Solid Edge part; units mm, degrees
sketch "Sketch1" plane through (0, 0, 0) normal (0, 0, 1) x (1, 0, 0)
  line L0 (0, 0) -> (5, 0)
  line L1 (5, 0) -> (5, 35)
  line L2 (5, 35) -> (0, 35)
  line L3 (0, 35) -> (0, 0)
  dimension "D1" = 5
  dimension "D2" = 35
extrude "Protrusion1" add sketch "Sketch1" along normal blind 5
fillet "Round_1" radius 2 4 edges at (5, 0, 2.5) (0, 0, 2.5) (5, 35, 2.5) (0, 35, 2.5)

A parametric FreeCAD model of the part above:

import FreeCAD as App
import Part
import Sketcher


def edges_at(feature, points):
    """Names of the edges that pass closest to the given points."""
    edges = feature.Shape.Edges
    near = lambda p: min(range(len(edges)), key=lambda i: edges[i].distToShape(Part.Vertex(*p))[0])
    return sorted({f"Edge{near(p) + 1}" for p in points})


def add_polygon(sketch, points):
    """Adds a closed chain of lines whose ends are joined by coincident constraints."""
    first, n = sketch.GeometryCount, len(points)
    for a, b in zip(points, points[1:] + points[:1]):
        sketch.addGeometry(Part.LineSegment(App.Vector(*a, 0), App.Vector(*b, 0)), False)
    for i in range(n):
        sketch.addConstraint(Sketcher.Constraint("Coincident", first + i, 2, first + (i + 1) % n, 1))

doc = App.newDocument("Part")
body = doc.addObject("PartDesign::Body", "Body")

# Sketch on XY plane
sketch1 = body.newObject("Sketcher::SketchObject", "Sketch")
sketch1.AttachmentSupport = (doc.getObject("XY_Plane"), [""])
sketch1.MapMode = "FlatFace"
add_polygon(sketch1, [(0, 35), (0, 0), (5, 0), (5, 35)])  # lines 0-3
sketch1.addConstraint(Sketcher.Constraint("Vertical", 0))
sketch1.addConstraint(Sketcher.Constraint("Horizontal", 1))
sketch1.addConstraint(Sketcher.Constraint("Vertical", 2))
sketch1.addConstraint(Sketcher.Constraint("Horizontal", 3))
sketch1.addConstraint(Sketcher.Constraint("Coincident", 0, 2, -1, 1))
sketch1.addConstraint(Sketcher.Constraint("DistanceX", 1, 1, 1, 2, 5.0))
sketch1.addConstraint(Sketcher.Constraint("DistanceY", 0, 2, 0, 1, 35.0))
pad1 = body.newObject("PartDesign::Pad", "Pad")
pad1.Profile = sketch1
pad1.Length = 5
doc.recompute()

fillet = body.newObject("PartDesign::Fillet", "Fillet")
fillet.Base = (pad1, edges_at(pad1, [
    (5, 0, 2.5),
    (0, 0, 2.5),
    (5, 35, 2.5),
    (0, 35, 2.5),
]))
fillet.Radius = 2

doc.recompute()
